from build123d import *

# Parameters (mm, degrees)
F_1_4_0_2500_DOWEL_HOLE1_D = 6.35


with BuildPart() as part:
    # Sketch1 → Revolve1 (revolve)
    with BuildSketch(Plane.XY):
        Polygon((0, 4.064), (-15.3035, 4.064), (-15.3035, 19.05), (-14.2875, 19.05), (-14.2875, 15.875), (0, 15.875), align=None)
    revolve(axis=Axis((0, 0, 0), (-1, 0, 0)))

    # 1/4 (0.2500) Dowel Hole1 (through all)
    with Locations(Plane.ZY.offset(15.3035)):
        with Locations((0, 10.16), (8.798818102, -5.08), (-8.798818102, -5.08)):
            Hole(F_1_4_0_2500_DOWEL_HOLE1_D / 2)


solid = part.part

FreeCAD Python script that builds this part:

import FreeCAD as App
import Part
import Sketcher
Q = App.Units.Quantity

doc = App.newDocument("Part")
params = doc.addObject("Spreadsheet::Sheet", "Params")
for row, (alias, value) in enumerate([
    ("sketch1_width", "0.04 in"),
    ("sketch1_height", "0.59 in"),
    ("sketch1_width2", "0.5625 in"),
    ("sketch1_height2", "0.465 in"),
    ("revolution_angle", "360 deg"),
    ("sketch2_diameter", "0.25 in"),
    ("hole_diameter", "0.25 in"),
], start=1):
    params.set(f"A{row}", alias)
    params.set(f"B{row}", "=" + value)
    params.setAlias(f"B{row}", alias)

body = doc.addObject("PartDesign::Body", "Body")

sketch1 = doc.addObject("Sketcher::SketchObject", "Sketch")
body.addObject(sketch1)
sketch1.AttachmentSupport = (doc.XY_Plane, [""])
sketch1.MapMode = "FlatFace"
sketch1.addGeometry(Part.LineSegment(App.Vector(-15.3, 4.1, 0), App.Vector(0, 4.1, 0)), False)
sketch1.addGeometry(Part.LineSegment(App.Vector(0, 4.1, 0), App.Vector(0, 15.9, 0)), False)
sketch1.addGeometry(Part.LineSegment(App.Vector(0, 15.9, 0), App.Vector(-14.3, 15.9, 0)), False)
sketch1.addGeometry(Part.LineSegment(App.Vector(-14.3, 15.9, 0), App.Vector(-14.3, 19.1, 0)), False)
sketch1.addGeometry(Part.LineSegment(App.Vector(-14.3, 19.1, 0), App.Vector(-15.3, 19.1, 0)), False)
sketch1.addGeometry(Part.LineSegment(App.Vector(-15.3, 19.1, 0), App.Vector(-15.3, 4.1, 0)), False)
sketch1.addConstraint(Sketcher.Constraint("Coincident", 0, 2, 1, 1))
sketch1.addConstraint(Sketcher.Constraint("Coincident", 1, 2, 2, 1))
sketch1.addConstraint(Sketcher.Constraint("Coincident", 2, 2, 3, 1))
sketch1.addConstraint(Sketcher.Constraint("Coincident", 3, 2, 4, 1))
sketch1.addConstraint(Sketcher.Constraint("Coincident", 4, 2, 5, 1))
sketch1.addConstraint(Sketcher.Constraint("Coincident", 5, 2, 0, 1))
sketch1.addConstraint(Sketcher.Constraint("Horizontal", 0))
sketch1.addConstraint(Sketcher.Constraint("Vertical", 1))
sketch1.addConstraint(Sketcher.Constraint("Horizontal", 2))
sketch1.addConstraint(Sketcher.Constraint("Vertical", 3))
sketch1.addConstraint(Sketcher.Constraint("Horizontal", 4))
sketch1.addConstraint(Sketcher.Constraint("Vertical", 5))
sketch1.addConstraint(Sketcher.Constraint("PointOnObject", 0, 2, -2))
sketch1.addConstraint(Sketcher.Constraint("DistanceX", 4, 2, 4, 1, Q("0.04 in")))
sketch1.addConstraint(Sketcher.Constraint("DistanceY", 5, 2, 5, 1, Q("0.59 in")))
sketch1.addConstraint(Sketcher.Constraint("DistanceX", 2, 2, 2, 1, Q("0.5625 in")))
sketch1.addConstraint(Sketcher.Constraint("DistanceY", 1, 1, 1, 2, Q("0.465 in")))
sketch1.addConstraint(Sketcher.Constraint("DistanceY", -1, 1, 0, 2, Q("0.16 in")))
sketch1.setExpression("Constraints[13]", "Params.sketch1_width")
sketch1.setExpression("Constraints[14]", "Params.sketch1_height")
sketch1.setExpression("Constraints[15]", "Params.sketch1_width2")
sketch1.setExpression("Constraints[16]", "Params.sketch1_height2")
revolution = doc.addObject("PartDesign::Revolution", "Revolution")
body.addObject(revolution)
revolution.Profile = sketch1
revolution.ReferenceAxis = (sketch1, ["H_Axis"])
revolution.setExpression("Angle", "Params.revolution_angle")

sketch2 = doc.addObject("Sketcher::SketchObject", "Sketch001")
body.addObject(sketch2)
sketch2.AttachmentSupport = (doc.YZ_Plane, [""])
sketch2.MapMode = "FlatFace"
sketch2.AttachmentOffset = App.Placement(App.Vector(0, 0, -0.6025 * 25.4), App.Rotation())
sketch2.addGeometry(Part.Circle(App.Vector(10.2, 0, 0), App.Vector(0, 0, 1), 3.2), False)
sketch2.addGeometry(Part.Circle(App.Vector(-5.1, 8.8, 0), App.Vector(0, 0, 1), 3.2), False)
sketch2.addGeometry(Part.Circle(App.Vector(-5.1, -8.8, 0), App.Vector(0, 0, 1), 3.2), False)
sketch2.addConstraint(Sketcher.Constraint("Equal", 0, 1))
sketch2.addConstraint(Sketcher.Constraint("Equal", 1, 2))
sketch2.addConstraint(Sketcher.Constraint("Symmetric", 1, 3, 2, 3, -1))
sketch2.addConstraint(Sketcher.Constraint("PointOnObject", 0, 3, -1))
sketch2.addConstraint(Sketcher.Constraint("Diameter", 0, Q("0.25 in")))
sketch2.addConstraint(Sketcher.Constraint("DistanceX", -1, 1, 0, 3, Q("0.4 in")))
sketch2.addConstraint(Sketcher.Constraint("DistanceX", 1, 3, -1, 1, Q("0.2 in")))
sketch2.addConstraint(Sketcher.Constraint("DistanceY", -1, 1, 1, 3, 8.798818))
sketch2.setExpression("Constraints[4]", "Params.sketch2_diameter")
doc.recompute()
hole = doc.addObject("PartDesign::Hole", "Hole")
body.addObject(hole)
hole.Profile = sketch2
hole.ThreadType = "None"
hole.setExpression("Diameter", "Params.hole_diameter")
hole.DepthType = "ThroughAll"
hole.Reversed = True

doc.recompute()
